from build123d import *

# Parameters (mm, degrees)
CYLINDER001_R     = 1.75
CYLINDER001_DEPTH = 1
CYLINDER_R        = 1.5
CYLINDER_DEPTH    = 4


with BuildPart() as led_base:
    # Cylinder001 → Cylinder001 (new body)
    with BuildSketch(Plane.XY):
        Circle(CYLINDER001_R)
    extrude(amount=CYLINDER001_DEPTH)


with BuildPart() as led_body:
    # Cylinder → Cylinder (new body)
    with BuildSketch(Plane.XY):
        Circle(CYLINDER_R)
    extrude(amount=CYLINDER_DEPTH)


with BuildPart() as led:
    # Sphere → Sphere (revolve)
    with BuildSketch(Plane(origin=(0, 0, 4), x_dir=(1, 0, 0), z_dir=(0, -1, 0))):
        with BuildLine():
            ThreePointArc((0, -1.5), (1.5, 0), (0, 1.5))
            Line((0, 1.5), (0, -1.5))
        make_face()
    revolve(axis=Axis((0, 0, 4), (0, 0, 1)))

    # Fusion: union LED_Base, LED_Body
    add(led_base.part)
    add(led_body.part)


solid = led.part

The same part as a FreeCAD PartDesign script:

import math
import FreeCAD as App
import Part
import Sketcher

doc = App.newDocument("Part")
body = doc.addObject("PartDesign::Body", "Body")

# Sketch on XY plane
sketch1 = body.newObject("Sketcher::SketchObject", "Sketch")
sketch1.AttachmentSupport = (doc.getObject("XY_Plane"), [""])
sketch1.MapMode = "FlatFace"
sketch1.addGeometry(Part.Circle(App.Vector(0, 0, 0), App.Vector(0, 0, 1), 1.8), False)
sketch1.addConstraint([
    Sketcher.Constraint("Coincident", 0, 3, -1, 1),
    Sketcher.Constraint("Diameter", 0, 3.5),
])
pad1 = body.newObject("PartDesign::Pad", "Pad")
pad1.Profile = sketch1
pad1.Length = 1
body2 = doc.addObject("PartDesign::Body", "Body001")

# Sketch on XY plane
sketch2 = body2.newObject("Sketcher::SketchObject", "Sketch001")
sketch2.AttachmentSupport = (doc.getObject("XY_Plane001"), [""])
sketch2.MapMode = "FlatFace"
sketch2.addGeometry(Part.Circle(App.Vector(0, 0, 0), App.Vector(0, 0, 1), 1.5), False)
sketch2.addConstraint([
    Sketcher.Constraint("Coincident", 0, 3, -1, 1),
    Sketcher.Constraint("Diameter", 0, 3.0),
])
pad2 = body2.newObject("PartDesign::Pad", "Pad001")
pad2.Profile = sketch2
pad2.Length = 4
body3 = doc.addObject("PartDesign::Body", "Body002")
body3.AllowCompound = True

# Sketch on XZ plane
sketch3 = body3.newObject("Sketcher::SketchObject", "Sketch002")
sketch3.AttachmentSupport = (doc.getObject("XZ_Plane002"), [""])
sketch3.MapMode = "FlatFace"
sketch3.addGeometry([
    Part.ArcOfCircle(Part.Circle(App.Vector(0, 4, 0), App.Vector(0, 0, 1), 1.5), math.radians(-90), math.radians(90)),
    Part.LineSegment(App.Vector(0, 5.5, 0), App.Vector(0, 2.5, 0)),
], False)
sketch3.addConstraint([
    Sketcher.Constraint("Coincident", 0, 1, 1, 2),
    Sketcher.Constraint("Coincident", 1, 1, 0, 2),
    Sketcher.Constraint("Vertical", 1),
    Sketcher.Constraint("PointOnObject", 0, 3, -2),
    Sketcher.Constraint("PointOnObject", 0, 1, -2),
    Sketcher.Constraint("Radius", 0, 1.5),
    Sketcher.Constraint("DistanceY", -1, 1, 0, 3, 4.0),
])
revolution = body3.newObject("PartDesign::Revolution", "Revolution")
revolution.Profile = sketch3
revolution.ReferenceAxis = (sketch3, ["V_Axis"])
revolution.Angle = 360
doc.recompute()

boolean = body3.newObject("PartDesign::Boolean", "Boolean")
boolean.Type = "Fuse"
boolean.addObjects([body])
doc.recompute()

boolean2 = body3.newObject("PartDesign::Boolean", "Boolean001")
boolean2.Type = "Fuse"
boolean2.addObjects([body2])

doc.recompute()
